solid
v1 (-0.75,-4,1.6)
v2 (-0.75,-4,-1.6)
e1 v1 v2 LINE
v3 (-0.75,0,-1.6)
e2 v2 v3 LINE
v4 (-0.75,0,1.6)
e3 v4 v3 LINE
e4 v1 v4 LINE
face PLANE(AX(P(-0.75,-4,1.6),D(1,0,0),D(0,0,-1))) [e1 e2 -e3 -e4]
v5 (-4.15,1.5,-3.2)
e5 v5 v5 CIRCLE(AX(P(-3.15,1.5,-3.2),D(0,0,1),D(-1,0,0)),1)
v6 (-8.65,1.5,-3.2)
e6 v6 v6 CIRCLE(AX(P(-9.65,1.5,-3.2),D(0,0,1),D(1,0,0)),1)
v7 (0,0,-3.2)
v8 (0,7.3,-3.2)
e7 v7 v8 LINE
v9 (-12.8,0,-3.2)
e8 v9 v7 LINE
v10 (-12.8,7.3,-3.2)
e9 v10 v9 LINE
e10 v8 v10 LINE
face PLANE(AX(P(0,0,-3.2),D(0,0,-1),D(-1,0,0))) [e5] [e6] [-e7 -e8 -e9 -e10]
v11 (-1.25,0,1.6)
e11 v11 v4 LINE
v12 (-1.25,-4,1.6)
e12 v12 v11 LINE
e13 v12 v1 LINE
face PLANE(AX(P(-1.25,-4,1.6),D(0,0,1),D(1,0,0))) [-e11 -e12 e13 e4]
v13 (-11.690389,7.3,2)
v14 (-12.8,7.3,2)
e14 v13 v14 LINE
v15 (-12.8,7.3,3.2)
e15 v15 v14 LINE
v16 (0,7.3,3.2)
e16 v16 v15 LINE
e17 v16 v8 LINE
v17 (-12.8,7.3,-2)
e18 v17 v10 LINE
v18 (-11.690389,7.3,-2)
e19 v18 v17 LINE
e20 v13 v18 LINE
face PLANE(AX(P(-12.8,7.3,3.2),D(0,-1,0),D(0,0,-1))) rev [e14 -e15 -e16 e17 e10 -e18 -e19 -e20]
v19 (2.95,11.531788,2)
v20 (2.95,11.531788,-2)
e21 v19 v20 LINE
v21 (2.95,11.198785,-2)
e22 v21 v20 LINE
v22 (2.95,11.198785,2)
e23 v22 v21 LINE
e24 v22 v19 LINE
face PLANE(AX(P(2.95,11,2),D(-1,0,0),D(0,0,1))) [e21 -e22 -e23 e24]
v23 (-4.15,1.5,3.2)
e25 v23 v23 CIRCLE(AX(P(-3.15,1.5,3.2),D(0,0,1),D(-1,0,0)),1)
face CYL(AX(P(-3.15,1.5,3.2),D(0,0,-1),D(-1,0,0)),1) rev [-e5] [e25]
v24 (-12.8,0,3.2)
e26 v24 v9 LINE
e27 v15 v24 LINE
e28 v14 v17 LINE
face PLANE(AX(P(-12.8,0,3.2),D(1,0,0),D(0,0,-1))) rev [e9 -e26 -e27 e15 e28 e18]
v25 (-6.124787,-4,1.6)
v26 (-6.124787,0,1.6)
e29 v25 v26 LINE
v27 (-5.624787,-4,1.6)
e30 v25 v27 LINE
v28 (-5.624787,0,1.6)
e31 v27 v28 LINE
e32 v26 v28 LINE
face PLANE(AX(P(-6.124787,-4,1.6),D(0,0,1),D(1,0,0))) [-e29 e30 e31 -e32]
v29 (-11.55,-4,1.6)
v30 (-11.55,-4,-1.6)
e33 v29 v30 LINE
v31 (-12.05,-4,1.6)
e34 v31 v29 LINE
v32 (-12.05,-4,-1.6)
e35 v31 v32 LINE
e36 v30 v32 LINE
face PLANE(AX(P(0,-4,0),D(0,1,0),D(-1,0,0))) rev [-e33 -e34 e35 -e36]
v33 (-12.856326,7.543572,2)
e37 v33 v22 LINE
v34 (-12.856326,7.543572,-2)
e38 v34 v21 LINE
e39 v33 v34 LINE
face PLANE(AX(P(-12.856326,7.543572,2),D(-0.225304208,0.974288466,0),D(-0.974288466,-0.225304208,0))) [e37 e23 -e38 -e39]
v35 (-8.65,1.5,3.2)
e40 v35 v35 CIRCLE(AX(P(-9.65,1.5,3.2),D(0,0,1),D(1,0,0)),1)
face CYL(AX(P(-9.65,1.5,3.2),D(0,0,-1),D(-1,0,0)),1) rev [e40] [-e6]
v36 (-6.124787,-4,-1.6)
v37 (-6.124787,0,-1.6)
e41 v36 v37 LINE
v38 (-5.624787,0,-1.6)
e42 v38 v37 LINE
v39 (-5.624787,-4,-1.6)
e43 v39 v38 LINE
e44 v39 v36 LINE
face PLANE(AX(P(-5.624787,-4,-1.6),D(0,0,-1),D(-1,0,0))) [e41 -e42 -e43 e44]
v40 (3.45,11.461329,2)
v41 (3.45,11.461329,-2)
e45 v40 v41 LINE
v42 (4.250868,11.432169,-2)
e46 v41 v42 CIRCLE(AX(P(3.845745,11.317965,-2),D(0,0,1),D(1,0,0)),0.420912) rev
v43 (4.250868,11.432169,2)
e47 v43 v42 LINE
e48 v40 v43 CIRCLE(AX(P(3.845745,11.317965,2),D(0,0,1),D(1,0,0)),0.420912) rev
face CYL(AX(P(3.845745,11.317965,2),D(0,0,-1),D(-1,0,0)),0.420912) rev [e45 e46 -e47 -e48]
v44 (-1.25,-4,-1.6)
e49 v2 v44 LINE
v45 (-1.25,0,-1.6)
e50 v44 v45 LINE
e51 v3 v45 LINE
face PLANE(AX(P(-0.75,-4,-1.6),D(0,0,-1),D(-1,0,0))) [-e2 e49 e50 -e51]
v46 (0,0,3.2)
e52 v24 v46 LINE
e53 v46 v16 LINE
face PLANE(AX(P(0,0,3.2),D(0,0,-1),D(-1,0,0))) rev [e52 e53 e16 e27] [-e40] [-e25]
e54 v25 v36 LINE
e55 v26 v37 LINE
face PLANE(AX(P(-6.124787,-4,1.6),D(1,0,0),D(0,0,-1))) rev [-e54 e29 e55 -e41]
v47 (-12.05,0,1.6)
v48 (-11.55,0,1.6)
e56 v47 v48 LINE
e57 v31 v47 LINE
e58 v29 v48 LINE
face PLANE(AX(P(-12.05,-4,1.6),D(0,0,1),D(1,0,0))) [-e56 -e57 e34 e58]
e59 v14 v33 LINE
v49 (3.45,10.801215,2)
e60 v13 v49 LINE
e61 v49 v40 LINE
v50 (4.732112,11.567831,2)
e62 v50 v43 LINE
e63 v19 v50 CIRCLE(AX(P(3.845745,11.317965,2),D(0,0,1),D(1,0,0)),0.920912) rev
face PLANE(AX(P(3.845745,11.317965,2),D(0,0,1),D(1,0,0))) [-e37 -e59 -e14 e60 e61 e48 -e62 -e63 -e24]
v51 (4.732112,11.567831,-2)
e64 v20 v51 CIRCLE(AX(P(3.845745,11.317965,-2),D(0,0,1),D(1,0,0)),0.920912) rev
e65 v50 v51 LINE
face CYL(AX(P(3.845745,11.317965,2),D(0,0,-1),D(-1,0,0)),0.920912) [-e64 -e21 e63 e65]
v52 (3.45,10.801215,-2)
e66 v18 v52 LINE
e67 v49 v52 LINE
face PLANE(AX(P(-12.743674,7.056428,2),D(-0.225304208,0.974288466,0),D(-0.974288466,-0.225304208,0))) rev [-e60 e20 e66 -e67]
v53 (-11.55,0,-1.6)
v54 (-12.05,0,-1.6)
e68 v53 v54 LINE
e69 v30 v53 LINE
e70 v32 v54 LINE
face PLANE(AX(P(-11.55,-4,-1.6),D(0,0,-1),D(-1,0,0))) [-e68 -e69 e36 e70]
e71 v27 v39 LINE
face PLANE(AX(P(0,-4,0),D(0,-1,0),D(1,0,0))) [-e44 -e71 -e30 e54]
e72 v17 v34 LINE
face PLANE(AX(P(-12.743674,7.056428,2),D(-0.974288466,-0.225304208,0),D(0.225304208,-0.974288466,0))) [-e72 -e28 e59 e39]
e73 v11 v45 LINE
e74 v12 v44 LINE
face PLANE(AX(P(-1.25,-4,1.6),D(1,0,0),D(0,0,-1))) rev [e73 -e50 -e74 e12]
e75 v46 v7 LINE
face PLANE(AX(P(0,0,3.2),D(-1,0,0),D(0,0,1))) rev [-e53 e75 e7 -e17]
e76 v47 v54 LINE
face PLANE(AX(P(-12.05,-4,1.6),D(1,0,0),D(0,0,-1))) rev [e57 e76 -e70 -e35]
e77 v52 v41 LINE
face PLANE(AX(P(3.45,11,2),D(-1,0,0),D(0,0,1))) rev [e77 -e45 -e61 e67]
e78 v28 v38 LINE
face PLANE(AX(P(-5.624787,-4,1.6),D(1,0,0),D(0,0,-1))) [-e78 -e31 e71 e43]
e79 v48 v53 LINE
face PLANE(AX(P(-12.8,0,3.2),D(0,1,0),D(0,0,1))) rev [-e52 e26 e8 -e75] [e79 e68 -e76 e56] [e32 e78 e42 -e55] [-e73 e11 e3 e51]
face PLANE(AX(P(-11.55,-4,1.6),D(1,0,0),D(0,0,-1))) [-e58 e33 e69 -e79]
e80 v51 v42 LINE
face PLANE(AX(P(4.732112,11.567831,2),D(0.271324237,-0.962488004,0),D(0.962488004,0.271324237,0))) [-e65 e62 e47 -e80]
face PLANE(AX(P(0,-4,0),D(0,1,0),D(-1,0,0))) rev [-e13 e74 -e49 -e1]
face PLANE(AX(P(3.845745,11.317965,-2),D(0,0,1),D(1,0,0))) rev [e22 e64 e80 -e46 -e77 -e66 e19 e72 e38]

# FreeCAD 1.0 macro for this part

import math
import FreeCAD as App
import Part
import Sketcher

V = App.Vector
Q = App.Units.Quantity


def add_polygon(sketch, points):
    """Adds a closed chain of lines whose ends are joined by coincident constraints."""
    first, n = sketch.GeometryCount, len(points)
    for a, b in zip(points, points[1:] + points[:1]):
        sketch.addGeometry(Part.LineSegment(App.Vector(*a, 0), App.Vector(*b, 0)), False)
    for i in range(n):
        sketch.addConstraint(Sketcher.Constraint("Coincident", first + i, 2, first + (i + 1) % n, 1))

doc = App.newDocument("Part")
params = doc.addObject("Spreadsheet::Sheet", "Params")
for row, (alias, value) in enumerate([
    ("sketch1_diameter", "2 mm"),
    ("sketch1_width", "12.8 mm"),
    ("sketch1_height", "7.3 mm"),
    ("pad1_length", "6.4 mm"),
    ("sketch2_width", "0.5 mm"),
    ("sketch2_height", "3.2 mm"),
    ("pad2_length", "4 mm"),
    ("sketch3_length", "0.5 mm"),
    ("sketch3_length2", "0.5 mm"),
    ("pad3_length", "4 mm"),
], start=1):
    params.set(f"A{row}", alias)
    params.set(f"B{row}", "=" + value)
    params.setAlias(f"B{row}", alias)

body = doc.addObject("PartDesign::Body", "Body")

sketch1 = body.newObject("Sketcher::SketchObject", "Sketch")
sketch1.AttachmentSupport = (doc.getObject("XY_Plane"), [""])
sketch1.MapMode = "FlatFace"
add_polygon(sketch1, [(-12.8, 7.3), (-12.8, 0), (0, 0), (0, 7.3)])
sketch1.addGeometry(Part.Circle(V(-9.7, 1.5, 0), V(0, 0, 1), 1), False)
sketch1.addGeometry(Part.Circle(V(-3.1, 1.5, 0), V(0, 0, 1), 1), False)
sketch1.addConstraint(Sketcher.Constraint("Vertical", 0))
sketch1.addConstraint(Sketcher.Constraint("Horizontal", 1))
sketch1.addConstraint(Sketcher.Constraint("Vertical", 2))
sketch1.addConstraint(Sketcher.Constraint("Horizontal", 3))
sketch1.addConstraint(Sketcher.Constraint("Coincident", 1, 2, -1, 1))
sketch1.addConstraint(Sketcher.Constraint("Equal", 4, 5))
sketch1.addConstraint(Sketcher.Constraint("Horizontal", 4, 3, 5, 3))
sketch1.addConstraint(Sketcher.Constraint("Diameter", 4, Q("2 mm")))
sketch1.addConstraint(Sketcher.Constraint("DistanceX", 1, 1, 1, 2, Q("12.8 mm")))
sketch1.addConstraint(Sketcher.Constraint("DistanceY", 0, 2, 0, 1, Q("7.3 mm")))
sketch1.addConstraint(Sketcher.Constraint("DistanceY", -1, 1, 4, 3, Q("1.5 mm")))
sketch1.addConstraint(Sketcher.Constraint("DistanceX", 4, 3, 5, 3, Q("6.5 mm")))
sketch1.addConstraint(Sketcher.Constraint("DistanceX", 4, 3, -1, 1, Q("9.65 mm")))
sketch1.setExpression("Constraints[11]", "Params.sketch1_diameter")
sketch1.setExpression("Constraints[12]", "Params.sketch1_width")
sketch1.setExpression("Constraints[13]", "Params.sketch1_height")
pad1 = body.newObject("PartDesign::Pad", "Pad")
pad1.Profile = sketch1
pad1.setExpression("Length", "Params.pad1_length")
pad1.Midplane = True

sketch2 = body.newObject("Sketcher::SketchObject", "Sketch001")
sketch2.AttachmentSupport = (doc.getObject("XZ_Plane"), [""])
sketch2.MapMode = "FlatFace"
add_polygon(sketch2, [(-12.1, 1.6), (-12.1, -1.6), (-11.6, -1.6), (-11.6, 1.6)])
add_polygon(sketch2, [(-6.1, 1.6), (-6.1, -1.6), (-5.6, -1.6), (-5.6, 1.6)])
add_polygon(sketch2, [(-1.2, 1.6), (-1.2, -1.6), (-0.8, -1.6), (-0.8, 1.6)])
sketch2.addConstraint(Sketcher.Constraint("Vertical", 0))
sketch2.addConstraint(Sketcher.Constraint("Horizontal", 1))
sketch2.addConstraint(Sketcher.Constraint("Vertical", 2))
sketch2.addConstraint(Sketcher.Constraint("Horizontal", 3))
sketch2.addConstraint(Sketcher.Constraint("Vertical", 4))
sketch2.addConstraint(Sketcher.Constraint("Horizontal", 5))
sketch2.addConstraint(Sketcher.Constraint("Vertical", 6))
sketch2.addConstraint(Sketcher.Constraint("Horizontal", 7))
sketch2.addConstraint(Sketcher.Constraint("Vertical", 8))
sketch2.addConstraint(Sketcher.Constraint("Horizontal", 9))
sketch2.addConstraint(Sketcher.Constraint("Vertical", 10))
sketch2.addConstraint(Sketcher.Constraint("Horizontal", 11))
sketch2.addConstraint(Sketcher.Constraint("Horizontal", 1, 2, 4, 2))
sketch2.addConstraint(Sketcher.Constraint("Horizontal", 3, 2, 6, 2))
sketch2.addConstraint(Sketcher.Constraint("Horizontal", 5, 2, 8, 2))
sketch2.addConstraint(Sketcher.Constraint("Horizontal", 7, 2, 10, 2))
sketch2.addConstraint(Sketcher.Constraint("Equal", 3, 5))
sketch2.addConstraint(Sketcher.Constraint("Equal", 7, 9))
sketch2.addConstraint(Sketcher.Constraint("DistanceX", 1, 1, 1, 2, Q("0.5 mm")))
sketch2.addConstraint(Sketcher.Constraint("DistanceY", 0, 2, 0, 1, Q("3.2 mm")))
sketch2.addConstraint(Sketcher.Constraint("DistanceY", 0, 2, -1, 1, Q("1.6 mm")))
sketch2.addConstraint(Sketcher.Constraint("DistanceX", 1, 2, 8, 2, Q("10.3 mm")))
sketch2.addConstraint(Sketcher.Constraint("DistanceX", 0, 2, -1, 1, Q("12.05 mm")))
sketch2.addConstraint(Sketcher.Constraint("DistanceX", 4, 2, -1, 1, Q("6.124787 mm")))
sketch2.setExpression("Constraints[30]", "Params.sketch2_width")
sketch2.setExpression("Constraints[31]", "Params.sketch2_height")
pad2 = body.newObject("PartDesign::Pad", "Pad001")
pad2.Profile = sketch2
pad2.setExpression("Length", "Params.pad2_length")

sketch3 = body.newObject("Sketcher::SketchObject", "Sketch002")
sketch3.AttachmentSupport = (doc.getObject("XY_Plane"), [""])
sketch3.MapMode = "FlatFace"
sketch3.addGeometry(Part.LineSegment(V(-12.743674, 7.056428, 0), V(3.45, 10.801215, 0)), False)
sketch3.addGeometry(Part.LineSegment(V(3.45, 10.801215, 0), V(3.45, 11.461329, 0)), False)
sketch3.addGeometry(Part.ArcOfCircle(Part.Circle(V(3.845745, 11.317965, 0), V(0, 0, 1), 0.420912), math.radians(15.743082), math.radians(160.086489)), False)
sketch3.addGeometry(Part.LineSegment(V(4.250868, 11.432169, 0), V(4.732112, 11.567831, 0)), False)
sketch3.addGeometry(Part.ArcOfCircle(Part.Circle(V(3.845745, 11.317965, 0), V(0, 0, 1), 0.920912), math.radians(15.743082), math.radians(166.57419)), False)
sketch3.addGeometry(Part.LineSegment(V(2.95, 11.531788, 0), V(2.95, 11.198785, 0)), False)
sketch3.addGeometry(Part.LineSegment(V(2.95, 11.198785, 0), V(-12.856326, 7.543572, 0)), False)
sketch3.addGeometry(Part.LineSegment(V(-12.856326, 7.543572, 0), V(-12.743674, 7.056428, 0)), False)
sketch3.addConstraint(Sketcher.Constraint("Coincident", 0, 2, 1, 1))
sketch3.addConstraint(Sketcher.Constraint("Coincident", 1, 2, 2, 2))
sketch3.addConstraint(Sketcher.Constraint("Coincident", 2, 1, 3, 1))
sketch3.addConstraint(Sketcher.Constraint("Coincident", 3, 2, 4, 1))
sketch3.addConstraint(Sketcher.Constraint("Coincident", 4, 2, 5, 1))
sketch3.addConstraint(Sketcher.Constraint("Coincident", 5, 2, 6, 1))
sketch3.addConstraint(Sketcher.Constraint("Coincident", 6, 2, 7, 1))
sketch3.addConstraint(Sketcher.Constraint("Coincident", 7, 2, 0, 1))
sketch3.addConstraint(Sketcher.Constraint("Vertical", 1))
sketch3.addConstraint(Sketcher.Constraint("Vertical", 5))
sketch3.addConstraint(Sketcher.Constraint("Coincident", 4, 3, 2, 3))
sketch3.addConstraint(Sketcher.Constraint("Distance", 3, Q("0.5 mm")))
sketch3.addConstraint(Sketcher.Constraint("Distance", 7, Q("0.5 mm")))
sketch3.addConstraint(Sketcher.Constraint("DistanceX", 4, 2, 1, 2, Q("0.5 mm")))
sketch3.addConstraint(Sketcher.Constraint("DistanceX", -1, 1, 0, 2, Q("3.45 mm")))
sketch3.addConstraint(Sketcher.Constraint("Radius", 2, Q("0.420912 mm")))
sketch3.addConstraint(Sketcher.Constraint("DistanceY", 7, 2, 1, 2, Q("4.404901 mm")))
sketch3.addConstraint(Sketcher.Constraint("DistanceY", 1, 1, 1, 2, Q("0.660114 mm")))
sketch3.addConstraint(Sketcher.Constraint("DistanceY", 5, 2, 5, 1, Q("0.333003 mm")))
sketch3.addConstraint(Sketcher.Constraint("DistanceY", -1, 1, 1, 2, Q("11.461329 mm")))
sketch3.addConstraint(Sketcher.Constraint("DistanceX", -1, 1, 2, 1, Q("4.250868 mm")))
sketch3.addConstraint(Sketcher.Constraint("DistanceY", -1, 1, 2, 1, Q("11.432169 mm")))
sketch3.addConstraint(Sketcher.Constraint("DistanceY", -1, 1, 3, 2, Q("11.567831 mm")))
sketch3.addConstraint(Sketcher.Constraint("DistanceX", 6, 2, 4, 3, Q("16.702071 mm")))
sketch3.addConstraint(Sketcher.Constraint("Distance", 0, Q("16.621026 mm")))
sketch3.setExpression("Constraints[11]", "Params.sketch3_length")
sketch3.setExpression("Constraints[12]", "Params.sketch3_length2")
pad3 = body.newObject("PartDesign::Pad", "Pad002")
pad3.Profile = sketch3
pad3.setExpression("Length", "Params.pad3_length")
pad3.Midplane = True

doc.recompute()
